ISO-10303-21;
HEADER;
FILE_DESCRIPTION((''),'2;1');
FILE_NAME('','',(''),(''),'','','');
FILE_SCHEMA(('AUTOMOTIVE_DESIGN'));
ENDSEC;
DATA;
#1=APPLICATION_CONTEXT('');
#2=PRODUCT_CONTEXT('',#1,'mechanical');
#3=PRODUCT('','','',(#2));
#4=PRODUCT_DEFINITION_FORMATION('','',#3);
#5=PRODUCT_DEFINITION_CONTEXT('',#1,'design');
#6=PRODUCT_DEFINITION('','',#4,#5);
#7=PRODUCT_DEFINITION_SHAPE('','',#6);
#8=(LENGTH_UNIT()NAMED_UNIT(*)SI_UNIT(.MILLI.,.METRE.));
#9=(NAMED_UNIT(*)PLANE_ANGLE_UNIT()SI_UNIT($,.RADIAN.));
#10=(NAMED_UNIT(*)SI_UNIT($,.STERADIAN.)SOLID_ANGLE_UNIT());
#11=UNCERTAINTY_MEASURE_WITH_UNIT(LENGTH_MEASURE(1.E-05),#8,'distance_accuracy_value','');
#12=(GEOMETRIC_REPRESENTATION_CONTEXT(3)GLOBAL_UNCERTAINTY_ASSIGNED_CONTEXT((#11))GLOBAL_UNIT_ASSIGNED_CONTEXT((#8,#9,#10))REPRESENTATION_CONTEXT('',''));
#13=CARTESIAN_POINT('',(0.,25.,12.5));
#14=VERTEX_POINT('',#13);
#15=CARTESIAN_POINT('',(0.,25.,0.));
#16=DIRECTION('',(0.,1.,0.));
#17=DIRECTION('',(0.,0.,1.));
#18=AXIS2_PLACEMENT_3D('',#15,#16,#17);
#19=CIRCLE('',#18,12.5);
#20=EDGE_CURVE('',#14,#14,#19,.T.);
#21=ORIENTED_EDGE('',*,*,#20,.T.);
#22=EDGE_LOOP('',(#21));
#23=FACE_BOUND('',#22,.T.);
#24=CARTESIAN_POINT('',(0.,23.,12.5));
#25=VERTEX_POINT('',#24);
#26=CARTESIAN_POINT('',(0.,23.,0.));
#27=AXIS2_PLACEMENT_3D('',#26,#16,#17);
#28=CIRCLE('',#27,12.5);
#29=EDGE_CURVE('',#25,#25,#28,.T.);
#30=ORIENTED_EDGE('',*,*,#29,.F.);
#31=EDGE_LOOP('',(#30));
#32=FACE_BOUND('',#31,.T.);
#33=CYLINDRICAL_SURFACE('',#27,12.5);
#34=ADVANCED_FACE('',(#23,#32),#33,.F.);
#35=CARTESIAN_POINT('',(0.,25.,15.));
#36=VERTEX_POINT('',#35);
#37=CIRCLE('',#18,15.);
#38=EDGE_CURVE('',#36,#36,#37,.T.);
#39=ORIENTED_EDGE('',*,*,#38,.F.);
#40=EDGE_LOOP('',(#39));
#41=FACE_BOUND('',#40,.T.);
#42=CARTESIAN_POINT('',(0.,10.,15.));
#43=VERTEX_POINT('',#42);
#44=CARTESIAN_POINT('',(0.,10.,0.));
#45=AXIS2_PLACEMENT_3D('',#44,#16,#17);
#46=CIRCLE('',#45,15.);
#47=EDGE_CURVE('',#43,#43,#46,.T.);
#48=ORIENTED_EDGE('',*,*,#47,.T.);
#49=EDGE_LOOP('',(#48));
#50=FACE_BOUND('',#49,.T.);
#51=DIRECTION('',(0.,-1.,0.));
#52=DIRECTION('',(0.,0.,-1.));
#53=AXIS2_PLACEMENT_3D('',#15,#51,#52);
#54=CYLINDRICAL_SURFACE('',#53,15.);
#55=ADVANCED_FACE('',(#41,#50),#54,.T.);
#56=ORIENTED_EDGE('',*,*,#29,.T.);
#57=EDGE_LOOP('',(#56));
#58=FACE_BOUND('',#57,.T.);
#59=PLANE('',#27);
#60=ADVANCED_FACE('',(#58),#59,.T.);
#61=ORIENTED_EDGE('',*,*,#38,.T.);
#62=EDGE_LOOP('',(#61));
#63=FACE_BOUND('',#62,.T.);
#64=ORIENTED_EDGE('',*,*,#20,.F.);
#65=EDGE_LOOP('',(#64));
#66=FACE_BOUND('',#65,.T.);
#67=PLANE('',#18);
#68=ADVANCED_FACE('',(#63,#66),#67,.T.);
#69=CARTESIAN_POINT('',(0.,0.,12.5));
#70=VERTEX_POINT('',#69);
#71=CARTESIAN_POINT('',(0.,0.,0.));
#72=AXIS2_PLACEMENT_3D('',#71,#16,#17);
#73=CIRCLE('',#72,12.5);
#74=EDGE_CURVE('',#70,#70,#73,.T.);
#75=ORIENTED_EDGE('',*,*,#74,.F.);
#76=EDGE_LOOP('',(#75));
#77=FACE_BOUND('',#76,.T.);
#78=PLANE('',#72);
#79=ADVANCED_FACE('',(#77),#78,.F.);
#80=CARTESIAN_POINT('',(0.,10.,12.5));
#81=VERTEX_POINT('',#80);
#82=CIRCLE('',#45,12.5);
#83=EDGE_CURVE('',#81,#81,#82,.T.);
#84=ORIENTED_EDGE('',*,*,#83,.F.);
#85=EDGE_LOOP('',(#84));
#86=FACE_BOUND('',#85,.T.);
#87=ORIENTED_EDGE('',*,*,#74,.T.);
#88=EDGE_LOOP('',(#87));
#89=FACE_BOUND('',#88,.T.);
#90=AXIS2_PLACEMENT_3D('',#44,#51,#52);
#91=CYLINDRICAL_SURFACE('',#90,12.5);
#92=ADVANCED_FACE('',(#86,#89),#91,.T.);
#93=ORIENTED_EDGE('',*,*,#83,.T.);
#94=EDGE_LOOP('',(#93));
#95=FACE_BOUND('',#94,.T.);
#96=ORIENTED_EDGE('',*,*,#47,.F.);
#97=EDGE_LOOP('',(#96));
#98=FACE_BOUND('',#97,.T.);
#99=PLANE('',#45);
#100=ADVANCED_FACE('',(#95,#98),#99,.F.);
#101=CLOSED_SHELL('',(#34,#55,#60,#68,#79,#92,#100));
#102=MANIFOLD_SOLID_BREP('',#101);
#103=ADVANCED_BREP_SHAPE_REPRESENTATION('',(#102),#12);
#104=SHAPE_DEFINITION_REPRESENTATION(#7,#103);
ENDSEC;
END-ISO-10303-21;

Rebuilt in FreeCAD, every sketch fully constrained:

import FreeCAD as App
import Part
import Sketcher

V = App.Vector

doc = App.newDocument("Part")
params = doc.addObject("Spreadsheet::Sheet", "Params")
for row, (alias, value) in enumerate([
    ("sketch1_diameter", "25 mm"),
    ("pad1_length", "10 mm"),
    ("sketch2_diameter", "30 mm"),
    ("pad2_length", "15 mm"),
    ("sketch3_diameter", "25 mm"),
    ("pocket1_length", "2 mm"),
], start=1):
    params.set(f"A{row}", alias)
    params.set(f"B{row}", "=" + value)
    params.setAlias(f"B{row}", alias)

body = doc.addObject("PartDesign::Body", "Body")

# Sketch on XZ plane
sketch1 = body.newObject("Sketcher::SketchObject", "Sketch")
sketch1.AttachmentSupport = (doc.getObject("XZ_Plane"), [""])
sketch1.MapMode = "FlatFace"
sketch1.addGeometry(Part.Circle(V(0, 0, 0), V(0, 0, 1), 12.5), False)
sketch1.addConstraint(Sketcher.Constraint("Coincident", 0, 3, -1, 1))
sketch1.addConstraint(Sketcher.Constraint("Diameter", 0, 25.0))
sketch1.setExpression("Constraints[1]", "Params.sketch1_diameter")
pad1 = body.newObject("PartDesign::Pad", "Pad")
pad1.Profile = sketch1
pad1.setExpression("Length", "Params.pad1_length")
pad1.Reversed = True

# Sketch on XZ plane
sketch2 = body.newObject("Sketcher::SketchObject", "Sketch001")
sketch2.AttachmentSupport = (doc.getObject("XZ_Plane"), [""])
sketch2.MapMode = "FlatFace"
sketch2.AttachmentOffset = App.Placement(V(0, 0, -10), App.Rotation())
sketch2.addGeometry(Part.Circle(V(0, 0, 0), V(0, 0, 1), 15), False)
sketch2.addConstraint(Sketcher.Constraint("Coincident", 0, 3, -1, 1))
sketch2.addConstraint(Sketcher.Constraint("Diameter", 0, 30.0))
sketch2.setExpression("Constraints[1]", "Params.sketch2_diameter")
pad2 = body.newObject("PartDesign::Pad", "Pad001")
pad2.Profile = sketch2
pad2.setExpression("Length", "Params.pad2_length")
pad2.Reversed = True

# Sketch on XZ plane
sketch3 = body.newObject("Sketcher::SketchObject", "Sketch002")
sketch3.AttachmentSupport = (doc.getObject("XZ_Plane"), [""])
sketch3.MapMode = "FlatFace"
sketch3.AttachmentOffset = App.Placement(V(0, 0, -25), App.Rotation())
sketch3.addGeometry(Part.Circle(V(0, 0, 0), V(0, 0, 1), 12.5), False)
sketch3.addConstraint(Sketcher.Constraint("Coincident", 0, 3, -1, 1))
sketch3.addConstraint(Sketcher.Constraint("Diameter", 0, 25.0))
sketch3.setExpression("Constraints[1]", "Params.sketch3_diameter")
pocket1 = body.newObject("PartDesign::Pocket", "Pocket")
pocket1.Profile = sketch3
pocket1.setExpression("Length", "Params.pocket1_length")
pocket1.Reversed = True

doc.recompute()
